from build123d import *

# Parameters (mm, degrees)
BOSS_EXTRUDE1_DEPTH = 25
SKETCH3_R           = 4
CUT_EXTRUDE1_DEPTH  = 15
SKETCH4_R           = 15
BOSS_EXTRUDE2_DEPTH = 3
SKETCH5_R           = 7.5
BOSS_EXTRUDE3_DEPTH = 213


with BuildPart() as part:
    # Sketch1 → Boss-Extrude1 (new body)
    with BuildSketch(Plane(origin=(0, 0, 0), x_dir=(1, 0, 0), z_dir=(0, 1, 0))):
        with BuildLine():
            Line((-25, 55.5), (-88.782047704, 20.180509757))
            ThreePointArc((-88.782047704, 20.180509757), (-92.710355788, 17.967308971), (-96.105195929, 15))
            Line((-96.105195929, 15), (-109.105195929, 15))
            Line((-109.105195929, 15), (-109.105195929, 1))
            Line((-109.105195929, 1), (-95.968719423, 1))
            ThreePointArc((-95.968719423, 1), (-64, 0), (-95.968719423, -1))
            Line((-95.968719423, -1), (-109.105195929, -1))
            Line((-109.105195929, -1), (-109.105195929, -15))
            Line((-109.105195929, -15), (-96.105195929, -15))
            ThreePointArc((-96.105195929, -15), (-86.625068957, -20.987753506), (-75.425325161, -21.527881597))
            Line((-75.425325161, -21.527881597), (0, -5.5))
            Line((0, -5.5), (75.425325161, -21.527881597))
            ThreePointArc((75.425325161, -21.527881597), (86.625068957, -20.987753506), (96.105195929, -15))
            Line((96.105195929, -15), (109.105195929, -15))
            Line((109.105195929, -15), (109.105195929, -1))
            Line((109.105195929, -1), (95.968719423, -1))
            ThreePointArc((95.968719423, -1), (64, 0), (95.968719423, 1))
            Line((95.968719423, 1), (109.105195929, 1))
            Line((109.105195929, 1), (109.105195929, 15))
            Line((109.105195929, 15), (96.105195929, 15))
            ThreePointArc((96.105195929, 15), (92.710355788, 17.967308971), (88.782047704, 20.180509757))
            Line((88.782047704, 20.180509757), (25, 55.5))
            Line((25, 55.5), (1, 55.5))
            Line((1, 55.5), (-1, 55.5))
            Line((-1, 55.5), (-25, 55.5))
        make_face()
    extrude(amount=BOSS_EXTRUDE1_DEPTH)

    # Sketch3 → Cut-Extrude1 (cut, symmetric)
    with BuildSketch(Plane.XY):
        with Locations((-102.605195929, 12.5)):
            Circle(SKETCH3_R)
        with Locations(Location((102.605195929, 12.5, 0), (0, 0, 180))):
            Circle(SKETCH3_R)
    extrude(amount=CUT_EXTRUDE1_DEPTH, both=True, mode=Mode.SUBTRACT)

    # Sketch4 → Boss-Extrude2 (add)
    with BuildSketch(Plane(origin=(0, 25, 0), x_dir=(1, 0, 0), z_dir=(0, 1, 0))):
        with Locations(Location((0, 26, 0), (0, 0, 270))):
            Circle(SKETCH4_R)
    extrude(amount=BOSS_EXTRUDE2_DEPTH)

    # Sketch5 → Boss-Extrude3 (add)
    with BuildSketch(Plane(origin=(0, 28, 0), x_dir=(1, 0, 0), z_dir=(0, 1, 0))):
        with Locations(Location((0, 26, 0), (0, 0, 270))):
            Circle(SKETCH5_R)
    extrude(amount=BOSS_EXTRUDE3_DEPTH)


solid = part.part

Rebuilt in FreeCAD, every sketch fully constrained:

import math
import FreeCAD as App
import Part
import Sketcher
from FreeCAD import Vector

doc = App.newDocument("Part")
params = doc.addObject("Spreadsheet::Sheet", "Params")
for row, (alias, value) in enumerate([
    ("sketch1_radius", "16 mm"),
    ("sketch1_width", "13 mm"),
    ("sketch1_width2", "50 mm"),
    ("sketch1_height", "14 mm"),
    ("pad1_length", "25 mm"),
    ("sketch2_diameter", "8 mm"),
    ("pocket1_length", "30 mm"),
    ("sketch3_diameter", "30 mm"),
    ("pad2_length", "3 mm"),
    ("sketch4_diameter", "15 mm"),
    ("pad3_length", "213 mm"),
], start=1):
    params.set(f"A{row}", alias)
    params.set(f"B{row}", "=" + value)
    params.setAlias(f"B{row}", alias)

body = doc.addObject("PartDesign::Body", "Body")

sketch1 = body.newObject("Sketcher::SketchObject", "Sketch")
sketch1.AttachmentSupport = (doc.getObject("XZ_Plane"), [""])
sketch1.MapMode = "FlatFace"
sketch1.addGeometry(Part.LineSegment(Vector(-25, -55.5, 0), Vector(-88.8, -20.2, 0)), False)
sketch1.addGeometry(Part.ArcOfCircle(Part.Circle(Vector(-80, 0, 0), Vector(0, 0, 1), 22), math.radians(-137), math.radians(-114)), False)
sketch1.addGeometry(Part.LineSegment(Vector(-96.1, -15, 0), Vector(-109.1, -15, 0)), False)
sketch1.addGeometry(Part.LineSegment(Vector(-109.1, -15, 0), Vector(-109.1, -1, 0)), False)
sketch1.addGeometry(Part.LineSegment(Vector(-109.1, -1, 0), Vector(-96, -1, 0)), False)
sketch1.addGeometry(Part.ArcOfCircle(Part.Circle(Vector(-80, 0, 0), Vector(0, 0, 1), 16), math.radians(-176), math.radians(176)), False)
sketch1.addGeometry(Part.LineSegment(Vector(-96, 1, 0), Vector(-109.1, 1, 0)), False)
sketch1.addGeometry(Part.LineSegment(Vector(-109.1, 1, 0), Vector(-109.1, 15, 0)), False)
sketch1.addGeometry(Part.LineSegment(Vector(-109.1, 15, 0), Vector(-96.1, 15, 0)), False)
sketch1.addGeometry(Part.ArcOfCircle(Part.Circle(Vector(-80, 0, 0), Vector(0, 0, 1), 22), math.radians(78), math.radians(137)), False)
sketch1.addGeometry(Part.LineSegment(Vector(-75.4, 21.5, 0), Vector(0, 5.5, 0)), False)
sketch1.addGeometry(Part.LineSegment(Vector(0, 5.5, 0), Vector(75.4, 21.5, 0)), False)
sketch1.addGeometry(Part.ArcOfCircle(Part.Circle(Vector(80, 0, 0), Vector(0, 0, 1), 22), math.radians(43), math.radians(102)), False)
sketch1.addGeometry(Part.LineSegment(Vector(96.1, 15, 0), Vector(109.1, 15, 0)), False)
sketch1.addGeometry(Part.LineSegment(Vector(109.1, 15, 0), Vector(109.1, 1, 0)), False)
sketch1.addGeometry(Part.LineSegment(Vector(109.1, 1, 0), Vector(96, 1, 0)), False)
sketch1.addGeometry(Part.ArcOfCircle(Part.Circle(Vector(80, 0, 0), Vector(0, 0, 1), 16), math.radians(4), math.radians(356)), False)
sketch1.addGeometry(Part.LineSegment(Vector(96, -1, 0), Vector(109.1, -1, 0)), False)
sketch1.addGeometry(Part.LineSegment(Vector(109.1, -1, 0), Vector(109.1, -15, 0)), False)
sketch1.addGeometry(Part.LineSegment(Vector(109.1, -15, 0), Vector(96.1, -15, 0)), False)
sketch1.addGeometry(Part.ArcOfCircle(Part.Circle(Vector(80, 0, 0), Vector(0, 0, 1), 22), math.radians(-66), math.radians(-43)), False)
sketch1.addGeometry(Part.LineSegment(Vector(88.8, -20.2, 0), Vector(25, -55.5, 0)), False)
sketch1.addGeometry(Part.LineSegment(Vector(25, -55.5, 0), Vector(-25, -55.5, 0)), False)
sketch1.addConstraint(Sketcher.Constraint("Coincident", 0, 2, 1, 2))
sketch1.addConstraint(Sketcher.Constraint("Coincident", 1, 1, 2, 1))
sketch1.addConstraint(Sketcher.Constraint("Coincident", 2, 2, 3, 1))
sketch1.addConstraint(Sketcher.Constraint("Coincident", 3, 2, 4, 1))
sketch1.addConstraint(Sketcher.Constraint("Coincident", 4, 2, 5, 1))
sketch1.addConstraint(Sketcher.Constraint("Coincident", 5, 2, 6, 1))
sketch1.addConstraint(Sketcher.Constraint("Coincident", 6, 2, 7, 1))
sketch1.addConstraint(Sketcher.Constraint("Coincident", 7, 2, 8, 1))
sketch1.addConstraint(Sketcher.Constraint("Coincident", 8, 2, 9, 2))
sketch1.addConstraint(Sketcher.Constraint("Tangent", 9, 1, 10, 1))
sketch1.addConstraint(Sketcher.Constraint("Coincident", 10, 2, 11, 1))
sketch1.addConstraint(Sketcher.Constraint("Tangent", 11, 2, 12, 2))
sketch1.addConstraint(Sketcher.Constraint("Coincident", 12, 1, 13, 1))
sketch1.addConstraint(Sketcher.Constraint("Coincident", 13, 2, 14, 1))
sketch1.addConstraint(Sketcher.Constraint("Coincident", 14, 2, 15, 1))
sketch1.addConstraint(Sketcher.Constraint("Coincident", 15, 2, 16, 1))
sketch1.addConstraint(Sketcher.Constraint("Coincident", 16, 2, 17, 1))
sketch1.addConstraint(Sketcher.Constraint("Coincident", 17, 2, 18, 1))
sketch1.addConstraint(Sketcher.Constraint("Coincident", 18, 2, 19, 1))
sketch1.addConstraint(Sketcher.Constraint("Coincident", 19, 2, 20, 2))
sketch1.addConstraint(Sketcher.Constraint("Coincident", 20, 1, 21, 1))
sketch1.addConstraint(Sketcher.Constraint("Coincident", 21, 2, 22, 1))
sketch1.addConstraint(Sketcher.Constraint("Coincident", 22, 2, 0, 1))
sketch1.addConstraint(Sketcher.Constraint("Horizontal", 2))
sketch1.addConstraint(Sketcher.Constraint("Vertical", 3))
sketch1.addConstraint(Sketcher.Constraint("Horizontal", 4))
sketch1.addConstraint(Sketcher.Constraint("Horizontal", 6))
sketch1.addConstraint(Sketcher.Constraint("Vertical", 7))
sketch1.addConstraint(Sketcher.Constraint("Horizontal", 8))
sketch1.addConstraint(Sketcher.Constraint("Horizontal", 13))
sketch1.addConstraint(Sketcher.Constraint("Vertical", 14))
sketch1.addConstraint(Sketcher.Constraint("Horizontal", 15))
sketch1.addConstraint(Sketcher.Constraint("Horizontal", 17))
sketch1.addConstraint(Sketcher.Constraint("Vertical", 18))
sketch1.addConstraint(Sketcher.Constraint("Horizontal", 19))
sketch1.addConstraint(Sketcher.Constraint("Horizontal", 22))
sketch1.addConstraint(Sketcher.Constraint("Coincident", 5, 3, 1, 3))
sketch1.addConstraint(Sketcher.Constraint("Coincident", 9, 3, 1, 3))
sketch1.addConstraint(Sketcher.Constraint("Coincident", 16, 3, 12, 3))
sketch1.addConstraint(Sketcher.Constraint("Coincident", 20, 3, 12, 3))
sketch1.addConstraint(Sketcher.Constraint("Equal", 1, 9))
sketch1.addConstraint(Sketcher.Constraint("Equal", 9, 12))
sketch1.addConstraint(Sketcher.Constraint("Equal", 5, 16))
sketch1.addConstraint(Sketcher.Constraint("Equal", 12, 20))
sketch1.addConstraint(Sketcher.Constraint("Symmetric", 1, 3, 12, 3, -1, 1))
sketch1.addConstraint(Sketcher.Constraint("Symmetric", 2, 2, 13, 2, -1, 1))
sketch1.addConstraint(Sketcher.Constraint("Symmetric", 6, 2, 17, 2, -1, 1))
sketch1.addConstraint(Sketcher.Constraint("Symmetric", 9, 1, 11, 2, -2))
sketch1.addConstraint(Sketcher.Constraint("Symmetric", 7, 2, 13, 2, -2))
sketch1.addConstraint(Sketcher.Constraint("Horizontal", 6, 2, 14, 2))
sketch1.addConstraint(Sketcher.Constraint("Horizontal", 4, 2, 16, 2))
sketch1.addConstraint(Sketcher.Constraint("Horizontal", 2, 2, 18, 2))
sketch1.addConstraint(Sketcher.Constraint("Horizontal", 0, 2, 20, 1))
sketch1.addConstraint(Sketcher.Constraint("Equal", 0, 21))
sketch1.addConstraint(Sketcher.Constraint("Radius", 5, 16.0))
sketch1.addConstraint(Sketcher.Constraint("DistanceX", 2, 2, 2, 1, 13.0))
sketch1.addConstraint(Sketcher.Constraint("DistanceX", 22, 2, 22, 1, 50.0))
sketch1.addConstraint(Sketcher.Constraint("DistanceY", 3, 1, 3, 2, 14.0))
sketch1.addConstraint(Sketcher.Constraint("DistanceX", 1, 3, -1, 1, 80.0))
sketch1.addConstraint(Sketcher.Constraint("DistanceY", 1, 1, -1, 1, 15.0))
sketch1.addConstraint(Sketcher.Constraint("DistanceY", 21, 2, 10, 2, 61.0))
sketch1.addConstraint(Sketcher.Constraint("DistanceY", -1, 1, 10, 2, 5.5))
sketch1.addConstraint(Sketcher.Constraint("Radius", 1, 22.008574))
sketch1.addConstraint(Sketcher.Constraint("Distance", 0, 72.908271))
sketch1.setExpression("Constraints[54]", "Params.sketch1_radius")
sketch1.setExpression("Constraints[55]", "Params.sketch1_width")
sketch1.setExpression("Constraints[56]", "Params.sketch1_width2")
sketch1.setExpression("Constraints[57]", "Params.sketch1_height")
pad1 = body.newObject("PartDesign::Pad", "Pad")
pad1.Profile = sketch1
pad1.setExpression("Length", "Params.pad1_length")
pad1.Reversed = True

sketch2 = body.newObject("Sketcher::SketchObject", "Sketch001")
sketch2.AttachmentSupport = (doc.getObject("XY_Plane"), [""])
sketch2.MapMode = "FlatFace"
sketch2.addGeometry(Part.Circle(Vector(-102.6, 12.5, 0), Vector(0, 0, 1), 4), False)
sketch2.addGeometry(Part.Circle(Vector(102.6, 12.5, 0), Vector(0, 0, 1), 4), False)
sketch2.addConstraint(Sketcher.Constraint("Equal", 0, 1))
sketch2.addConstraint(Sketcher.Constraint("Symmetric", 0, 3, 1, 3, -2))
sketch2.addConstraint(Sketcher.Constraint("Diameter", 0, 8.0))
sketch2.addConstraint(Sketcher.Constraint("DistanceY", -1, 1, 0, 3, 12.5))
sketch2.addConstraint(Sketcher.Constraint("DistanceX", 0, 3, 1, 3, 205.210392))
sketch2.setExpression("Constraints[2]", "Params.sketch2_diameter")
pocket1 = body.newObject("PartDesign::Pocket", "Pocket")
pocket1.Profile = sketch2
pocket1.setExpression("Length", "Params.pocket1_length")
pocket1.Midplane = True

sketch3 = body.newObject("Sketcher::SketchObject", "Sketch002")
sketch3.AttachmentSupport = (doc.getObject("XZ_Plane"), [""])
sketch3.MapMode = "FlatFace"
sketch3.AttachmentOffset = App.Placement(Vector(0, 0, -25), App.Rotation())
sketch3.addGeometry(Part.Circle(Vector(0, -26, 0), Vector(0, 0, 1), 15), False)
sketch3.addConstraint(Sketcher.Constraint("PointOnObject", 0, 3, -2))
sketch3.addConstraint(Sketcher.Constraint("Diameter", 0, 30.0))
sketch3.addConstraint(Sketcher.Constraint("DistanceY", 0, 3, -1, 1, 26.0))
sketch3.setExpression("Constraints[1]", "Params.sketch3_diameter")
pad2 = body.newObject("PartDesign::Pad", "Pad001")
pad2.Profile = sketch3
pad2.setExpression("Length", "Params.pad2_length")
pad2.Reversed = True

sketch4 = body.newObject("Sketcher::SketchObject", "Sketch003")
sketch4.AttachmentSupport = (doc.getObject("XZ_Plane"), [""])
sketch4.MapMode = "FlatFace"
sketch4.AttachmentOffset = App.Placement(Vector(0, 0, -28), App.Rotation())
sketch4.addGeometry(Part.Circle(Vector(0, -26, 0), Vector(0, 0, 1), 8), False)
sketch4.addConstraint(Sketcher.Constraint("PointOnObject", 0, 3, -2))
sketch4.addConstraint(Sketcher.Constraint("Diameter", 0, 15.0))
sketch4.addConstraint(Sketcher.Constraint("DistanceY", 0, 3, -1, 1, 26.0))
sketch4.setExpression("Constraints[1]", "Params.sketch4_diameter")
pad3 = body.newObject("PartDesign::Pad", "Pad002")
pad3.Profile = sketch4
pad3.setExpression("Length", "Params.pad3_length")
pad3.Reversed = True

doc.recompute()
